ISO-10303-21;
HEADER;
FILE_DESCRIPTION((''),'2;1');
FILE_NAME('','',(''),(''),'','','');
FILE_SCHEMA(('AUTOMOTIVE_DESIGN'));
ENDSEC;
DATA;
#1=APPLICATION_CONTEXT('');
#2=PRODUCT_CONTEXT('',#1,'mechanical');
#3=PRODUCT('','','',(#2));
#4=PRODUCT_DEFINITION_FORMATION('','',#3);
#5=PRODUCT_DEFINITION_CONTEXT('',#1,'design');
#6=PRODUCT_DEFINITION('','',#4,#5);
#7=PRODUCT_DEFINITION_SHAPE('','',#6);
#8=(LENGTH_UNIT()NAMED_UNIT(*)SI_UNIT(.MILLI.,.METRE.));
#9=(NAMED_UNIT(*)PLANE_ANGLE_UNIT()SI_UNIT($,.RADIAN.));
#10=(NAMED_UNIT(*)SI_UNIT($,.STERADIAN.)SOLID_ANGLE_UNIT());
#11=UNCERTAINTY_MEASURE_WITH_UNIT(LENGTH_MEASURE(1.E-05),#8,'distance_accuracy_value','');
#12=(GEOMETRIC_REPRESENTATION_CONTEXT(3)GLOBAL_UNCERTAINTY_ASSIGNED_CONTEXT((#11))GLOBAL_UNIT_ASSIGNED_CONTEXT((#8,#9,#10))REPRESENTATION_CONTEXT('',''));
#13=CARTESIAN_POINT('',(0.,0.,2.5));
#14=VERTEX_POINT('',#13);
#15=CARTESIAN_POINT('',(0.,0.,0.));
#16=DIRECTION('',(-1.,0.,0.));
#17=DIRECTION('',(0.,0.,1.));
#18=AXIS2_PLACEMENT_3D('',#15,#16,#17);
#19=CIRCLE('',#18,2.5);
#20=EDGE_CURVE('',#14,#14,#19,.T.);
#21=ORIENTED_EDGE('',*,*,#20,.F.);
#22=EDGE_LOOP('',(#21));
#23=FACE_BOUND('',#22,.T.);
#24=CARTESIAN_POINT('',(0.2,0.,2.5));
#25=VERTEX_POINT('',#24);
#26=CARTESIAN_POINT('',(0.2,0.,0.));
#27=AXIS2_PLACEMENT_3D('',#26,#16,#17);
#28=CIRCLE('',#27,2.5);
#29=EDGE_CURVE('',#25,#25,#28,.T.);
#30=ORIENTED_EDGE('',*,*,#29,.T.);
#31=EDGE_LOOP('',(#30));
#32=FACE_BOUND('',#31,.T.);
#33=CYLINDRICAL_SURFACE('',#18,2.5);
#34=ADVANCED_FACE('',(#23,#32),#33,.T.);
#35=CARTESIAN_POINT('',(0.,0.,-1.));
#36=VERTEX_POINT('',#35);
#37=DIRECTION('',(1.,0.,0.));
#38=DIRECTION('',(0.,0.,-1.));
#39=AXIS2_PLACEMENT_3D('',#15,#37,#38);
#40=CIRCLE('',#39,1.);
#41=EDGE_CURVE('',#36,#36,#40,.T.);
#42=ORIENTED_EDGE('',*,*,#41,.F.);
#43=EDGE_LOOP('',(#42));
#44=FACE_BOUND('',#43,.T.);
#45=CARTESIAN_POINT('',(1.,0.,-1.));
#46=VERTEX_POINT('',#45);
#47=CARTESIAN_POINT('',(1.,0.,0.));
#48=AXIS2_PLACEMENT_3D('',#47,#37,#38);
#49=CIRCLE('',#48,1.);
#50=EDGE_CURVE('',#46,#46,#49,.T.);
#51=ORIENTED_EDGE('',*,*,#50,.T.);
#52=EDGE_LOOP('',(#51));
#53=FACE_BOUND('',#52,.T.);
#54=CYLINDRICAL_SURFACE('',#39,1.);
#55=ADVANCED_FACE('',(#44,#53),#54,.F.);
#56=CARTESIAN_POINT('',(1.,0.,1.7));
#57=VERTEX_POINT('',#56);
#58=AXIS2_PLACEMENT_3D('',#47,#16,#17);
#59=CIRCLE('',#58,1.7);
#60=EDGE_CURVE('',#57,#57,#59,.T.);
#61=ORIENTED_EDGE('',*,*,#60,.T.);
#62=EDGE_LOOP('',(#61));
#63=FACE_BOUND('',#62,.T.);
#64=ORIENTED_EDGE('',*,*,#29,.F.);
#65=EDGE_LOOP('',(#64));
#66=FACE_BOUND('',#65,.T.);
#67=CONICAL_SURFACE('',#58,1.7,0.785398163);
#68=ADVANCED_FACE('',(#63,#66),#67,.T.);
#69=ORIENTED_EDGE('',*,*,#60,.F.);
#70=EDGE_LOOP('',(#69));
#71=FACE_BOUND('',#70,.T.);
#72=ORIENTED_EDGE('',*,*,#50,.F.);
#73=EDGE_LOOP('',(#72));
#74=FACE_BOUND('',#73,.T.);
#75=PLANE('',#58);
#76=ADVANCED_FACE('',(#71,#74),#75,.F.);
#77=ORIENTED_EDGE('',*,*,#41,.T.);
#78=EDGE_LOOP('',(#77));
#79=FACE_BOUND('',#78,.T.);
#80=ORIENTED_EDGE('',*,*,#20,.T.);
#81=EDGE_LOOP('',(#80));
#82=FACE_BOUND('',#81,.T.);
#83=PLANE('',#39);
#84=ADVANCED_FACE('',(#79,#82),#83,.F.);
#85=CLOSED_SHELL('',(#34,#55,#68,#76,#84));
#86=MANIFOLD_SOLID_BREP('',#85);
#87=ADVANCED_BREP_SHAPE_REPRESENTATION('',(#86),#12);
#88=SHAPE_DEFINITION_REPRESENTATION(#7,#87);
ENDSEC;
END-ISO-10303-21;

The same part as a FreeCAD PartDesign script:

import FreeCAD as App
import Part
import Sketcher
from FreeCAD import Vector
Q = App.Units.Quantity

doc = App.newDocument("Part")
params = doc.addObject("Spreadsheet::Sheet", "Params")
for row, (alias, value) in enumerate([
    ("sketch1_width", "1 mm"),
    ("sketch1_width2", "0.2 mm"),
    ("sketch1_height", "2.5 mm"),
    ("revolution_angle", "360 deg"),
    ("sketch2_diameter", "2 mm"),
], start=1):
    params.set(f"A{row}", alias)
    params.set(f"B{row}", "=" + value)
    params.setAlias(f"B{row}", alias)

body = doc.addObject("PartDesign::Body", "Body")

# Sketch on XY plane
sketch1 = doc.addObject("Sketcher::SketchObject", "Sketch")
body.addObject(sketch1)
sketch1.AttachmentSupport = (doc.XY_Plane, [""])
sketch1.MapMode = "FlatFace"
sketch1.addGeometry([
    Part.LineSegment(Vector(0, 2.5, 0), Vector(0, 0, 0)),  # 0
    Part.LineSegment(Vector(0, 0, 0), Vector(1, 0, 0)),  # 1
    Part.LineSegment(Vector(1, 0, 0), Vector(1, 1.7, 0)),  # 2
    Part.LineSegment(Vector(1, 1.7, 0), Vector(0.2, 2.5, 0)),  # 3
    Part.LineSegment(Vector(0.2, 2.5, 0), Vector(0, 2.5, 0)),  # 4
], False)
sketch1.addConstraint([
    Sketcher.Constraint("Coincident", 0, 2, 1, 1),
    Sketcher.Constraint("Coincident", 1, 2, 2, 1),
    Sketcher.Constraint("Coincident", 2, 2, 3, 1),
    Sketcher.Constraint("Coincident", 3, 2, 4, 1),
    Sketcher.Constraint("Coincident", 4, 2, 0, 1),
    Sketcher.Constraint("Vertical", 0),
    Sketcher.Constraint("Horizontal", 1),
    Sketcher.Constraint("Vertical", 2),
    Sketcher.Constraint("Horizontal", 4),
    Sketcher.Constraint("Coincident", 0, 2, -1, 1),
    Sketcher.Constraint("DistanceX", 1, 1, 1, 2, 1.0),
    Sketcher.Constraint("Angle", 3, Q("135 deg")),
    Sketcher.Constraint("DistanceX", 4, 2, 4, 1, 0.2),
    Sketcher.Constraint("DistanceY", 0, 2, 0, 1, 2.5),
])
sketch1.setExpression("Constraints[10]", "Params.sketch1_width")
sketch1.setExpression("Constraints[12]", "Params.sketch1_width2")
sketch1.setExpression("Constraints[13]", "Params.sketch1_height")
revolution = doc.addObject("PartDesign::Revolution", "Revolution")
body.addObject(revolution)
revolution.Profile = sketch1
revolution.ReferenceAxis = (sketch1, ["H_Axis"])
revolution.setExpression("Angle", "Params.revolution_angle")

# Sketch on YZ plane
sketch2 = doc.addObject("Sketcher::SketchObject", "Sketch001")
body.addObject(sketch2)
sketch2.AttachmentSupport = (doc.YZ_Plane, [""])
sketch2.MapMode = "FlatFace"
sketch2.AttachmentOffset = App.Placement(Vector(0, 0, 1), App.Rotation())
sketch2.addGeometry(Part.Circle(Vector(0, 0, 0), Vector(0, 0, 1), 1), False)
sketch2.addConstraint([
    Sketcher.Constraint("Coincident", 0, 3, -1, 1),
    Sketcher.Constraint("Diameter", 0, 2.0),
])
sketch2.setExpression("Constraints[1]", "Params.sketch2_diameter")
pocket1 = doc.addObject("PartDesign::Pocket", "Pocket")
body.addObject(pocket1)
pocket1.Profile = sketch2
pocket1.Type = "ThroughAll"

doc.recompute()
